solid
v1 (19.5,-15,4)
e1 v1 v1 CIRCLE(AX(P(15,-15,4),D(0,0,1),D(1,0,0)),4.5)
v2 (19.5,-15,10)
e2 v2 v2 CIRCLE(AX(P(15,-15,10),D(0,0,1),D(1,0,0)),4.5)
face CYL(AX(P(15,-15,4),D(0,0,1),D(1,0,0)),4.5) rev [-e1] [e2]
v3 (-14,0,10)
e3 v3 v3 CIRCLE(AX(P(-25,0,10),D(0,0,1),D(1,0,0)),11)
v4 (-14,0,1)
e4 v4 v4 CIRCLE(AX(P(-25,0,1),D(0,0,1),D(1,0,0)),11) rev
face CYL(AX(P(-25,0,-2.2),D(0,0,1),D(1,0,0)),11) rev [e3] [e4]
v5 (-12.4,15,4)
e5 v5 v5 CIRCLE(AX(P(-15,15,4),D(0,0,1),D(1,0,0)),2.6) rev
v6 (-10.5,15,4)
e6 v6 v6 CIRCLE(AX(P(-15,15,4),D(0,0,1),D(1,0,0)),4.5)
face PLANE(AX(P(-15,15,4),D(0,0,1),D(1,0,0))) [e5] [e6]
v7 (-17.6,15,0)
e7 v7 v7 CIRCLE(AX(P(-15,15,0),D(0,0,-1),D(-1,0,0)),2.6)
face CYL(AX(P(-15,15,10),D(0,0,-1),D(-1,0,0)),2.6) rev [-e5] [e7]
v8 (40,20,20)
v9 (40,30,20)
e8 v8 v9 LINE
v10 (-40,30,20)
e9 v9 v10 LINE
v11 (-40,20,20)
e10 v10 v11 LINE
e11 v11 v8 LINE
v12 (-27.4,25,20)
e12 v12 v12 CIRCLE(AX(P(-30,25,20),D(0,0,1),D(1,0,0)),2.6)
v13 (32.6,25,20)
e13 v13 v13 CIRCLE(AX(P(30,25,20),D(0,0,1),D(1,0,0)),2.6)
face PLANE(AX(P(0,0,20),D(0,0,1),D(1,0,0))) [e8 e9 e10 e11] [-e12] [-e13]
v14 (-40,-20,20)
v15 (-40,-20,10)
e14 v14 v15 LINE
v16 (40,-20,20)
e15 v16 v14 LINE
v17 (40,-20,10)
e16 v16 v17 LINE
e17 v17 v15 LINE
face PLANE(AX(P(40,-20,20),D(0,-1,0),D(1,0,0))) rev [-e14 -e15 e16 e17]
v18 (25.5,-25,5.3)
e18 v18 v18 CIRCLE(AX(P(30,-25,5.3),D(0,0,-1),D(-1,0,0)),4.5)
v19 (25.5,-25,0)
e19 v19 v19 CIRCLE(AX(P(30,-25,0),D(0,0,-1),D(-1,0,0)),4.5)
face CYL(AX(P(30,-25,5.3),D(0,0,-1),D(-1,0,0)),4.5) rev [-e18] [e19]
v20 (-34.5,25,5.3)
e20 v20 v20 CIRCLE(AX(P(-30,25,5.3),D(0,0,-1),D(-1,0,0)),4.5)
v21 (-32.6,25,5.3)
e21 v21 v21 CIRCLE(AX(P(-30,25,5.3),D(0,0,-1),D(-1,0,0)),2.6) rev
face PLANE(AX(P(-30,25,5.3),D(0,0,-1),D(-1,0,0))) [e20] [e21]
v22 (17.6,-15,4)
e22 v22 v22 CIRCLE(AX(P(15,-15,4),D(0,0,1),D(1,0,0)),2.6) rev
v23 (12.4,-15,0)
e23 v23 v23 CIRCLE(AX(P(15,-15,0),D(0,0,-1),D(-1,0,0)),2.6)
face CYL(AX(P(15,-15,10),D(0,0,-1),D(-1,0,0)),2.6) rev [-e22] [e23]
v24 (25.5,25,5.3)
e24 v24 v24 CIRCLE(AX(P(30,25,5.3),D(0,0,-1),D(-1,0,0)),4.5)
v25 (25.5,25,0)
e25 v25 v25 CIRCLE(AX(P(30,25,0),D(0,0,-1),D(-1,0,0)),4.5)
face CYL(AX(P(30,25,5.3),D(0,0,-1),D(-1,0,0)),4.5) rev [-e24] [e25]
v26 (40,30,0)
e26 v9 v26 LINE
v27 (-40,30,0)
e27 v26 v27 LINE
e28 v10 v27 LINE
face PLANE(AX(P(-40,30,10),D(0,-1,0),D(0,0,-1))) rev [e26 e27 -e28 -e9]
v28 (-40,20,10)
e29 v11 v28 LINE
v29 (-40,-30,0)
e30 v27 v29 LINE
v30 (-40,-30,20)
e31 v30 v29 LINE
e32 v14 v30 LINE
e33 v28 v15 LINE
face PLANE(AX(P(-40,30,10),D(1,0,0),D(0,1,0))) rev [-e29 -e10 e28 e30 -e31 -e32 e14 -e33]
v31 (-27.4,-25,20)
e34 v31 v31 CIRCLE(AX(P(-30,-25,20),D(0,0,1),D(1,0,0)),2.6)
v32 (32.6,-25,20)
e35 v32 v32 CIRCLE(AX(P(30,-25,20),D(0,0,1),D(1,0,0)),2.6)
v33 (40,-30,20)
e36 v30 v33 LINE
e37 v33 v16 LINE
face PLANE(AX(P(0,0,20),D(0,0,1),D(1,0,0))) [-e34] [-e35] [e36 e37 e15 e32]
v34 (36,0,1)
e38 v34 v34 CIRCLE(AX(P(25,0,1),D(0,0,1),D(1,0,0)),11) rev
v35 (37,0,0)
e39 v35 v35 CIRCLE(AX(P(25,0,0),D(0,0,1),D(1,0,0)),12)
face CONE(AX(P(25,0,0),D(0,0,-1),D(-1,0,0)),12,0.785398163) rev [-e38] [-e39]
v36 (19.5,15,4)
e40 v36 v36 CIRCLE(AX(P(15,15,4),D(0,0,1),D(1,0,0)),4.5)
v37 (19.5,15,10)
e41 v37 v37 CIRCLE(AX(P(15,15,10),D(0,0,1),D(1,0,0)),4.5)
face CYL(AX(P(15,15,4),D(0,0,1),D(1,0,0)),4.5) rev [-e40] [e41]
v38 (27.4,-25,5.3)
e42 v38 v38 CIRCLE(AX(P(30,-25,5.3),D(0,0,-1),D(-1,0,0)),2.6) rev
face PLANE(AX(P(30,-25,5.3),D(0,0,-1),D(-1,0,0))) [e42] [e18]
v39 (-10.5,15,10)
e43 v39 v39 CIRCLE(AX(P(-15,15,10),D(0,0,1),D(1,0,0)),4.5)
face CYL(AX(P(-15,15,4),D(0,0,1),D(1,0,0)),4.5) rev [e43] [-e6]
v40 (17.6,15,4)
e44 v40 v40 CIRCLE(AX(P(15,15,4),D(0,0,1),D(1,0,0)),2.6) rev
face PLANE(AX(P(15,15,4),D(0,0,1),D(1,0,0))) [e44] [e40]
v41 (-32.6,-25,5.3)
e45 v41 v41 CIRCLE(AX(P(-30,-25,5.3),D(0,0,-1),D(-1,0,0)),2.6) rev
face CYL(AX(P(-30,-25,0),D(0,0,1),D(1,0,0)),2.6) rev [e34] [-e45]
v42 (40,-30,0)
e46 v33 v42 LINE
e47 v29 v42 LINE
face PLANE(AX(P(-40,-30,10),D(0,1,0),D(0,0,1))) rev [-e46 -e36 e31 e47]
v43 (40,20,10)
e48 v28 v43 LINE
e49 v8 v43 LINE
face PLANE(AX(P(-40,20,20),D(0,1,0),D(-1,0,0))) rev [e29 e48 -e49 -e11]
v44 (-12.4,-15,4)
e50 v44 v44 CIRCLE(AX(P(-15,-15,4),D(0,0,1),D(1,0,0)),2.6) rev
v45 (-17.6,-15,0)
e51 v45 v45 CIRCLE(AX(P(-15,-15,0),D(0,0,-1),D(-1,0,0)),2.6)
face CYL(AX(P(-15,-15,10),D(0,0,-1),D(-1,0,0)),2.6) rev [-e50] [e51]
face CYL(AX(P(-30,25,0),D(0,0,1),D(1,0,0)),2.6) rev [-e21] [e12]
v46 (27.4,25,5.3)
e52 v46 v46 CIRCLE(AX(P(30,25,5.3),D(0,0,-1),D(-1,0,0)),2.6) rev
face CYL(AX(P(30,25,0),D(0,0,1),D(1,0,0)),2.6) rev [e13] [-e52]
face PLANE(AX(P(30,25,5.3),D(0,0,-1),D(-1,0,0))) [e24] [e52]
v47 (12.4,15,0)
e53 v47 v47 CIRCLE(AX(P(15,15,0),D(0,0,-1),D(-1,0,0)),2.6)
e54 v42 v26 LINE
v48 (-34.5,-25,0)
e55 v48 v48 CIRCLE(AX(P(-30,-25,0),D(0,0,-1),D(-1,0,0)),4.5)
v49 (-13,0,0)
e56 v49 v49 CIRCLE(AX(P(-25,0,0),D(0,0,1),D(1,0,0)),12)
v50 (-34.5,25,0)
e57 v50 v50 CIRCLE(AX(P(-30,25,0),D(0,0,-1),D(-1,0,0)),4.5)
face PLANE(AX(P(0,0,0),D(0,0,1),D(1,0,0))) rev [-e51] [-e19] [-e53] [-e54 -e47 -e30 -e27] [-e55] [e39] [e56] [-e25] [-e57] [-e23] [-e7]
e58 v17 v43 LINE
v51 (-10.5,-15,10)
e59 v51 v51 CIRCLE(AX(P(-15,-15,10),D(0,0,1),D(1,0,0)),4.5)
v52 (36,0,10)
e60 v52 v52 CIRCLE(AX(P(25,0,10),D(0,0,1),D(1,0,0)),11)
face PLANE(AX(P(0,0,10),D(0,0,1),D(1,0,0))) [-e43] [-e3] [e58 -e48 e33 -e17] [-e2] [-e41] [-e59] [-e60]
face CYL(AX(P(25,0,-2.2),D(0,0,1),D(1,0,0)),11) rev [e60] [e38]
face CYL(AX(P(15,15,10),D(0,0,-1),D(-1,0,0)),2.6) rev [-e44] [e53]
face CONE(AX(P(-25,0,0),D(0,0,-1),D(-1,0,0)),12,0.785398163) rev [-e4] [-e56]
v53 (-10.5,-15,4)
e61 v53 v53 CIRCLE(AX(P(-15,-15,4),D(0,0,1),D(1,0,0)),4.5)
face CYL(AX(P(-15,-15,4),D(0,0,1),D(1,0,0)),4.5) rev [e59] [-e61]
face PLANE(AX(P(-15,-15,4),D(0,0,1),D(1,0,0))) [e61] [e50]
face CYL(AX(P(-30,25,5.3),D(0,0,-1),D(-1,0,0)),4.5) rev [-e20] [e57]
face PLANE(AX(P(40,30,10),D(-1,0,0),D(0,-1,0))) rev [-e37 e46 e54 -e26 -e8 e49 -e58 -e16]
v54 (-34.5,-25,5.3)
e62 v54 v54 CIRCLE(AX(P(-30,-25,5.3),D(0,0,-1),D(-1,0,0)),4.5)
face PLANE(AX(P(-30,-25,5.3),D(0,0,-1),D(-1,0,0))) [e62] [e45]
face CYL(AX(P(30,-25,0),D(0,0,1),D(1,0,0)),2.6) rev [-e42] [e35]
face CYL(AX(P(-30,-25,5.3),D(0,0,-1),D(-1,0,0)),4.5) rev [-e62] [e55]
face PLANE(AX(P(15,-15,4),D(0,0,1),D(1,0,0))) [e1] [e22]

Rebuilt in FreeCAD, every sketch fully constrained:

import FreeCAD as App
import Part
import Sketcher
from FreeCAD import Vector
Q = App.Units.Quantity


def edges_at(feature, points):
    """Names of the edges that pass closest to the given points."""
    edges = feature.Shape.Edges
    near = lambda p: min(range(len(edges)), key=lambda i: edges[i].distToShape(Part.Vertex(*p))[0])
    return sorted({f"Edge{near(p) + 1}" for p in points})

doc = App.newDocument("Part")
body = doc.addObject("PartDesign::Body", "Body")

# Sketch on XY plane
sketch1 = body.newObject("Sketcher::SketchObject", "Sketch")
sketch1.AttachmentSupport = (doc.getObject("XY_Plane"), [""])
sketch1.MapMode = "FlatFace"
sketch1.addGeometry(Part.LineSegment(Vector(-40, 30, 0), Vector(-40, -30, 0)), False)
sketch1.addGeometry(Part.LineSegment(Vector(-40, -30, 0), Vector(40, -30, 0)), False)
sketch1.addGeometry(Part.LineSegment(Vector(40, -30, 0), Vector(40, 30, 0)), False)
sketch1.addGeometry(Part.LineSegment(Vector(40, 30, 0), Vector(-40, 30, 0)), False)
sketch1.addConstraint(Sketcher.Constraint("Coincident", 0, 2, 1, 1))
sketch1.addConstraint(Sketcher.Constraint("Coincident", 1, 2, 2, 1))
sketch1.addConstraint(Sketcher.Constraint("Coincident", 2, 2, 3, 1))
sketch1.addConstraint(Sketcher.Constraint("Coincident", 3, 2, 0, 1))
sketch1.addConstraint(Sketcher.Constraint("Vertical", 0))
sketch1.addConstraint(Sketcher.Constraint("Horizontal", 1))
sketch1.addConstraint(Sketcher.Constraint("Vertical", 2))
sketch1.addConstraint(Sketcher.Constraint("Horizontal", 3))
sketch1.addConstraint(Sketcher.Constraint("Symmetric", 0, 2, 2, 2, -1, 1))
sketch1.addConstraint(Sketcher.Constraint("DistanceX", 1, 1, 1, 2, Q("80 mm")))
sketch1.addConstraint(Sketcher.Constraint("DistanceY", 0, 2, 0, 1, Q("60 mm")))
pad1 = body.newObject("PartDesign::Pad", "Pad")
pad1.Profile = sketch1
pad1.Length = 10

# Sketch on XY plane
sketch2 = body.newObject("Sketcher::SketchObject", "Sketch001")
sketch2.AttachmentSupport = (doc.getObject("XY_Plane"), [""])
sketch2.MapMode = "FlatFace"
sketch2.AttachmentOffset = App.Placement(Vector(0, 0, 10), App.Rotation())
sketch2.addGeometry(Part.LineSegment(Vector(-40, 30, 0), Vector(-40, 20, 0)), False)
sketch2.addGeometry(Part.LineSegment(Vector(-40, 20, 0), Vector(40, 20, 0)), False)
sketch2.addGeometry(Part.LineSegment(Vector(40, 20, 0), Vector(40, 30, 0)), False)
sketch2.addGeometry(Part.LineSegment(Vector(40, 30, 0), Vector(-40, 30, 0)), False)
sketch2.addGeometry(Part.LineSegment(Vector(-40, -20, 0), Vector(-40, -30, 0)), False)
sketch2.addGeometry(Part.LineSegment(Vector(-40, -30, 0), Vector(40, -30, 0)), False)
sketch2.addGeometry(Part.LineSegment(Vector(40, -30, 0), Vector(40, -20, 0)), False)
sketch2.addGeometry(Part.LineSegment(Vector(40, -20, 0), Vector(-40, -20, 0)), False)
sketch2.addConstraint(Sketcher.Constraint("Coincident", 0, 2, 1, 1))
sketch2.addConstraint(Sketcher.Constraint("Coincident", 1, 2, 2, 1))
sketch2.addConstraint(Sketcher.Constraint("Coincident", 2, 2, 3, 1))
sketch2.addConstraint(Sketcher.Constraint("Coincident", 3, 2, 0, 1))
sketch2.addConstraint(Sketcher.Constraint("Coincident", 4, 2, 5, 1))
sketch2.addConstraint(Sketcher.Constraint("Coincident", 5, 2, 6, 1))
sketch2.addConstraint(Sketcher.Constraint("Coincident", 6, 2, 7, 1))
sketch2.addConstraint(Sketcher.Constraint("Coincident", 7, 2, 4, 1))
sketch2.addConstraint(Sketcher.Constraint("Vertical", 0))
sketch2.addConstraint(Sketcher.Constraint("Horizontal", 1))
sketch2.addConstraint(Sketcher.Constraint("Vertical", 2))
sketch2.addConstraint(Sketcher.Constraint("Horizontal", 3))
sketch2.addConstraint(Sketcher.Constraint("Vertical", 4))
sketch2.addConstraint(Sketcher.Constraint("Horizontal", 5))
sketch2.addConstraint(Sketcher.Constraint("Vertical", 6))
sketch2.addConstraint(Sketcher.Constraint("Horizontal", 7))
sketch2.addConstraint(Sketcher.Constraint("Symmetric", 2, 2, 4, 2, -1, 1))
sketch2.addConstraint(Sketcher.Constraint("Symmetric", 0, 2, 6, 2, -1, 1))
sketch2.addConstraint(Sketcher.Constraint("Vertical", 3, 2, 4, 2))
sketch2.addConstraint(Sketcher.Constraint("DistanceX", 1, 1, 1, 2, Q("80 mm")))
sketch2.addConstraint(Sketcher.Constraint("DistanceY", 0, 2, 0, 1, Q("10 mm")))
sketch2.addConstraint(Sketcher.Constraint("DistanceY", -1, 1, 0, 2, Q("20 mm")))
pad2 = body.newObject("PartDesign::Pad", "Pad001")
pad2.Profile = sketch2
pad2.Length = 10

# Sketch on XY plane
sketch3 = body.newObject("Sketcher::SketchObject", "Sketch002")
sketch3.AttachmentSupport = (doc.getObject("XY_Plane"), [""])
sketch3.MapMode = "FlatFace"
sketch3.AttachmentOffset = App.Placement(Vector(0, 0, 20), App.Rotation())
sketch3.addGeometry(Part.Circle(Vector(30, 25, 0), Vector(0, 0, 1), 2.6), False)
sketch3.addGeometry(Part.Circle(Vector(-30, 25, 0), Vector(0, 0, 1), 2.6), False)
sketch3.addGeometry(Part.Circle(Vector(-30, -25, 0), Vector(0, 0, 1), 2.6), False)
sketch3.addGeometry(Part.Circle(Vector(30, -25, 0), Vector(0, 0, 1), 2.6), False)
sketch3.addConstraint(Sketcher.Constraint("Equal", 0, 1))
sketch3.addConstraint(Sketcher.Constraint("Equal", 1, 2))
sketch3.addConstraint(Sketcher.Constraint("Equal", 2, 3))
sketch3.addConstraint(Sketcher.Constraint("Symmetric", 0, 3, 2, 3, -1, 1))
sketch3.addConstraint(Sketcher.Constraint("Symmetric", 1, 3, 3, 3, -1, 1))
sketch3.addConstraint(Sketcher.Constraint("Symmetric", 0, 3, 1, 3, -2))
sketch3.addConstraint(Sketcher.Constraint("Diameter", 0, Q("5.2 mm")))
sketch3.addConstraint(Sketcher.Constraint("DistanceX", -1, 1, 0, 3, Q("30 mm")))
sketch3.addConstraint(Sketcher.Constraint("DistanceY", -1, 1, 0, 3, Q("25 mm")))
pocket1 = body.newObject("PartDesign::Pocket", "Pocket")
pocket1.Profile = sketch3
pocket1.Length = 20

# Sketch on XY plane
sketch4 = body.newObject("Sketcher::SketchObject", "Sketch003")
sketch4.AttachmentSupport = (doc.getObject("XY_Plane"), [""])
sketch4.MapMode = "FlatFace"
sketch4.AttachmentOffset = App.Placement(Vector(0, 0, 10), App.Rotation())
sketch4.addGeometry(Part.Circle(Vector(-25, 0, 0), Vector(0, 0, 1), 11), False)
sketch4.addGeometry(Part.Circle(Vector(25, 0, 0), Vector(0, 0, 1), 11), False)
sketch4.addConstraint(Sketcher.Constraint("Equal", 0, 1))
sketch4.addConstraint(Sketcher.Constraint("Symmetric", 0, 3, 1, 3, -1, 1))
sketch4.addConstraint(Sketcher.Constraint("PointOnObject", 0, 3, -1))
sketch4.addConstraint(Sketcher.Constraint("Diameter", 0, Q("22 mm")))
sketch4.addConstraint(Sketcher.Constraint("DistanceX", 0, 3, -1, 1, Q("25 mm")))
pocket2 = body.newObject("PartDesign::Pocket", "Pocket001")
pocket2.Profile = sketch4
pocket2.Length = 12.2
doc.recompute()

chamfer = body.newObject("PartDesign::Chamfer", "Chamfer")
chamfer.Base = (pocket2, edges_at(pocket2, [(-36, 0, 0), (14, 0, 0)]))
chamfer.Size = 1

# Sketch on XY plane
sketch5 = body.newObject("Sketcher::SketchObject", "Sketch004")
sketch5.AttachmentSupport = (doc.getObject("XY_Plane"), [""])
sketch5.MapMode = "FlatFace"
sketch5.addGeometry(Part.Circle(Vector(30, 25, 0), Vector(0, 0, 1), 4.5), False)
sketch5.addGeometry(Part.Circle(Vector(-30, 25, 0), Vector(0, 0, 1), 4.5), False)
sketch5.addGeometry(Part.Circle(Vector(-30, -25, 0), Vector(0, 0, 1), 4.5), False)
sketch5.addGeometry(Part.Circle(Vector(30, -25, 0), Vector(0, 0, 1), 4.5), False)
sketch5.addConstraint(Sketcher.Constraint("Equal", 0, 1))
sketch5.addConstraint(Sketcher.Constraint("Equal", 1, 2))
sketch5.addConstraint(Sketcher.Constraint("Equal", 2, 3))
sketch5.addConstraint(Sketcher.Constraint("Symmetric", 0, 3, 2, 3, -1, 1))
sketch5.addConstraint(Sketcher.Constraint("Symmetric", 1, 3, 3, 3, -1, 1))
sketch5.addConstraint(Sketcher.Constraint("Symmetric", 0, 3, 1, 3, -2))
sketch5.addConstraint(Sketcher.Constraint("Diameter", 0, Q("9 mm")))
sketch5.addConstraint(Sketcher.Constraint("DistanceX", -1, 1, 0, 3, Q("30 mm")))
sketch5.addConstraint(Sketcher.Constraint("DistanceY", -1, 1, 0, 3, Q("25 mm")))
pocket3 = body.newObject("PartDesign::Pocket", "Pocket002")
pocket3.Profile = sketch5
pocket3.Length = 5.3
pocket3.Reversed = True

# Sketch on XY plane
sketch6 = body.newObject("Sketcher::SketchObject", "Sketch005")
sketch6.AttachmentSupport = (doc.getObject("XY_Plane"), [""])
sketch6.MapMode = "FlatFace"
sketch6.addGeometry(Part.Circle(Vector(15, 15, 0), Vector(0, 0, 1), 2.6), False)
sketch6.addGeometry(Part.Circle(Vector(-15, 15, 0), Vector(0, 0, 1), 2.6), False)
sketch6.addGeometry(Part.Circle(Vector(-15, -15, 0), Vector(0, 0, 1), 2.6), False)
sketch6.addGeometry(Part.Circle(Vector(15, -15, 0), Vector(0, 0, 1), 2.6), False)
sketch6.addConstraint(Sketcher.Constraint("Equal", 0, 1))
sketch6.addConstraint(Sketcher.Constraint("Equal", 1, 2))
sketch6.addConstraint(Sketcher.Constraint("Equal", 2, 3))
sketch6.addConstraint(Sketcher.Constraint("Symmetric", 0, 3, 2, 3, -1, 1))
sketch6.addConstraint(Sketcher.Constraint("Symmetric", 1, 3, 3, 3, -1, 1))
sketch6.addConstraint(Sketcher.Constraint("Symmetric", 0, 3, 1, 3, -2))
sketch6.addConstraint(Sketcher.Constraint("Diameter", 0, Q("5.2 mm")))
sketch6.addConstraint(Sketcher.Constraint("DistanceX", -1, 1, 0, 3, Q("15 mm")))
sketch6.addConstraint(Sketcher.Constraint("DistanceY", -1, 1, 0, 3, Q("15 mm")))
pocket4 = body.newObject("PartDesign::Pocket", "Pocket003")
pocket4.Profile = sketch6
pocket4.Length = 10
pocket4.Reversed = True

# Sketch on XY plane
sketch7 = body.newObject("Sketcher::SketchObject", "Sketch006")
sketch7.AttachmentSupport = (doc.getObject("XY_Plane"), [""])
sketch7.MapMode = "FlatFace"
sketch7.AttachmentOffset = App.Placement(Vector(0, 0, 10), App.Rotation())
sketch7.addGeometry(Part.Circle(Vector(15, 15, 0), Vector(0, 0, 1), 4.5), False)
sketch7.addGeometry(Part.Circle(Vector(-15, 15, 0), Vector(0, 0, 1), 4.5), False)
sketch7.addGeometry(Part.Circle(Vector(-15, -15, 0), Vector(0, 0, 1), 4.5), False)
sketch7.addGeometry(Part.Circle(Vector(15, -15, 0), Vector(0, 0, 1), 4.5), False)
sketch7.addConstraint(Sketcher.Constraint("Equal", 0, 1))
sketch7.addConstraint(Sketcher.Constraint("Equal", 1, 2))
sketch7.addConstraint(Sketcher.Constraint("Equal", 2, 3))
sketch7.addConstraint(Sketcher.Constraint("Symmetric", 0, 3, 2, 3, -1, 1))
sketch7.addConstraint(Sketcher.Constraint("Symmetric", 1, 3, 3, 3, -1, 1))
sketch7.addConstraint(Sketcher.Constraint("Symmetric", 0, 3, 1, 3, -2))
sketch7.addConstraint(Sketcher.Constraint("Diameter", 0, Q("9 mm")))
sketch7.addConstraint(Sketcher.Constraint("DistanceX", -1, 1, 0, 3, Q("15 mm")))
sketch7.addConstraint(Sketcher.Constraint("DistanceY", -1, 1, 0, 3, Q("15 mm")))
pocket5 = body.newObject("PartDesign::Pocket", "Pocket004")
pocket5.Profile = sketch7
pocket5.Length = 6

doc.recompute()
